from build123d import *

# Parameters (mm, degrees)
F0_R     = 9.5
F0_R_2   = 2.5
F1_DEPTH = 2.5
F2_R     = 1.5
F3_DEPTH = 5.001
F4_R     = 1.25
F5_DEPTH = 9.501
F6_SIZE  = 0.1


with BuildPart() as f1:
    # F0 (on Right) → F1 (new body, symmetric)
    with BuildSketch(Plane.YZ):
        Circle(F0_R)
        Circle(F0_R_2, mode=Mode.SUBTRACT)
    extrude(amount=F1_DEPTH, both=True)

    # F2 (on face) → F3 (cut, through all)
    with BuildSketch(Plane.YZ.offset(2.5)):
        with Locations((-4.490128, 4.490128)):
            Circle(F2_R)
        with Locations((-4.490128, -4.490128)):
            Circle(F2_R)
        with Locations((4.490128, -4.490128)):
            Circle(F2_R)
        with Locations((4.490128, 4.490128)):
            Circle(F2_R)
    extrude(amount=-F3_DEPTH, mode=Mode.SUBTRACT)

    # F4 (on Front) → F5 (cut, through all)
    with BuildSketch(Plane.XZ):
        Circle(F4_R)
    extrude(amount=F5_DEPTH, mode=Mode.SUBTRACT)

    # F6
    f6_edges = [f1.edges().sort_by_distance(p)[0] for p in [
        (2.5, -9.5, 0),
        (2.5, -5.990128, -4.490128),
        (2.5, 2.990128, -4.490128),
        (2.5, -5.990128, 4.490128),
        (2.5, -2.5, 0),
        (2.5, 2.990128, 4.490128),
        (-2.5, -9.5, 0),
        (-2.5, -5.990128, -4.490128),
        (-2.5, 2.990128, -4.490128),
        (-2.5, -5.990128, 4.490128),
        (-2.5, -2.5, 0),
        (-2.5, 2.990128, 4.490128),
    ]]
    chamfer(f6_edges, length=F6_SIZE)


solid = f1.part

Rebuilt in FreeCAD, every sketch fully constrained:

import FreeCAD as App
import Part
import Sketcher
from FreeCAD import Vector


def edges_at(feature, points):
    """Names of the edges that pass closest to the given points."""
    edges = feature.Shape.Edges
    near = lambda p: min(range(len(edges)), key=lambda i: edges[i].distToShape(Part.Vertex(*p))[0])
    return sorted({f"Edge{near(p) + 1}" for p in points})

doc = App.newDocument("Part")
body = doc.addObject("PartDesign::Body", "Body")

# Sketch on YZ plane
sketch1 = body.newObject("Sketcher::SketchObject", "Sketch")
sketch1.AttachmentSupport = (doc.getObject("YZ_Plane"), [""])
sketch1.MapMode = "FlatFace"
sketch1.addGeometry(Part.Circle(Vector(0, 0, 0), Vector(0, 0, 1), 9.5), False)
sketch1.addGeometry(Part.Circle(Vector(0, 0, 0), Vector(0, 0, 1), 2.5), False)
sketch1.addConstraint(Sketcher.Constraint("Coincident", 0, 3, -1, 1))
sketch1.addConstraint(Sketcher.Constraint("Coincident", 1, 3, -1, 1))
sketch1.addConstraint(Sketcher.Constraint("Diameter", 0, 19.0))
sketch1.addConstraint(Sketcher.Constraint("Diameter", 1, 5.0))
pad1 = body.newObject("PartDesign::Pad", "Pad")
pad1.Profile = sketch1
pad1.Length = 5
pad1.Midplane = True

# Sketch on YZ plane
sketch2 = body.newObject("Sketcher::SketchObject", "Sketch001")
sketch2.AttachmentSupport = (doc.getObject("YZ_Plane"), [""])
sketch2.MapMode = "FlatFace"
sketch2.AttachmentOffset = App.Placement(Vector(0, 0, 2.5), App.Rotation())
sketch2.addGeometry(Part.Circle(Vector(-4.5, 4.5, 0), Vector(0, 0, 1), 1.5), False)
sketch2.addGeometry(Part.Circle(Vector(-4.5, -4.5, 0), Vector(0, 0, 1), 1.5), False)
sketch2.addGeometry(Part.Circle(Vector(4.5, -4.5, 0), Vector(0, 0, 1), 1.5), False)
sketch2.addGeometry(Part.Circle(Vector(4.5, 4.5, 0), Vector(0, 0, 1), 1.5), False)
sketch2.addConstraint(Sketcher.Constraint("Equal", 0, 1))
sketch2.addConstraint(Sketcher.Constraint("Equal", 1, 2))
sketch2.addConstraint(Sketcher.Constraint("Equal", 2, 3))
sketch2.addConstraint(Sketcher.Constraint("Symmetric", 0, 3, 2, 3, -1, 1))
sketch2.addConstraint(Sketcher.Constraint("Symmetric", 1, 3, 3, 3, -1, 1))
sketch2.addConstraint(Sketcher.Constraint("Symmetric", 1, 3, 2, 3, -2))
sketch2.addConstraint(Sketcher.Constraint("Diameter", 0, 3.0))
sketch2.addConstraint(Sketcher.Constraint("DistanceX", 0, 3, -1, 1, 4.490128))
sketch2.addConstraint(Sketcher.Constraint("DistanceY", -1, 1, 0, 3, 4.490128))
pocket1 = body.newObject("PartDesign::Pocket", "Pocket")
pocket1.Profile = sketch2
pocket1.Type = "ThroughAll"

# Sketch on XZ plane
sketch3 = body.newObject("Sketcher::SketchObject", "Sketch002")
sketch3.AttachmentSupport = (doc.getObject("XZ_Plane"), [""])
sketch3.MapMode = "FlatFace"
sketch3.addGeometry(Part.Circle(Vector(0, 0, 0), Vector(0, 0, 1), 1.2), False)
sketch3.addConstraint(Sketcher.Constraint("Coincident", 0, 3, -1, 1))
sketch3.addConstraint(Sketcher.Constraint("Diameter", 0, 2.5))
pocket2 = body.newObject("PartDesign::Pocket", "Pocket001")
pocket2.Profile = sketch3
pocket2.Type = "ThroughAll"
pocket2.Reversed = True
doc.recompute()

chamfer = body.newObject("PartDesign::Chamfer", "Chamfer")
chamfer.Base = (pocket2, edges_at(pocket2, [
    (2.5, -9.5, 0),
    (2.5, -5.99, -4.49),
    (2.5, 2.99, -4.49),
    (2.5, -5.99, 4.49),
    (2.5, -2.5, 0),
    (2.5, 2.99, 4.49),
    (-2.5, -9.5, 0),
    (-2.5, -5.99, -4.49),
    (-2.5, 2.99, -4.49),
    (-2.5, -5.99, 4.49),
    (-2.5, -2.5, 0),
    (-2.5, 2.99, 4.49),
]))
chamfer.Size = 0.1

doc.recompute()
